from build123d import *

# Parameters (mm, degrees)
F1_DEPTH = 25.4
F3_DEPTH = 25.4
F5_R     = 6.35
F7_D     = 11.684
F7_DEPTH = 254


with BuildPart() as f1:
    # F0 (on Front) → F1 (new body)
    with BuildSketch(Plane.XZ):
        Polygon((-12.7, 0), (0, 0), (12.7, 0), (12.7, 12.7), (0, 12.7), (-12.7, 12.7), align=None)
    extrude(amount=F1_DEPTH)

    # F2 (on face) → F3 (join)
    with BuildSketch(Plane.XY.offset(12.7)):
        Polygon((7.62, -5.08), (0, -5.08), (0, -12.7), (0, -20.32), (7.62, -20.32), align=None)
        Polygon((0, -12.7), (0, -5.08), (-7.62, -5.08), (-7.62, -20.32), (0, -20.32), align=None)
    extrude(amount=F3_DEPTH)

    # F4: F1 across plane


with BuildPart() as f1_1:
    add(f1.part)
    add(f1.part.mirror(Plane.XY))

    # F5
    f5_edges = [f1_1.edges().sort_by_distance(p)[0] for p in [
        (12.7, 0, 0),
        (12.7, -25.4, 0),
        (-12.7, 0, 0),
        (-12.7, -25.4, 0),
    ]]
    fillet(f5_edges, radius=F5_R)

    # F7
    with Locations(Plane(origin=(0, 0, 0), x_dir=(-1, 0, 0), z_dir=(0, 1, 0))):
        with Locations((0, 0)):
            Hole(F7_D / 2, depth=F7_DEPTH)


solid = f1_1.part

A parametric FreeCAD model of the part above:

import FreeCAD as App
import Part
import Sketcher
from FreeCAD import Vector
Q = App.Units.Quantity


def edges_at(feature, points):
    """Names of the edges that pass closest to the given points."""
    edges = feature.Shape.Edges
    near = lambda p: min(range(len(edges)), key=lambda i: edges[i].distToShape(Part.Vertex(*p))[0])
    return sorted({f"Edge{near(p) + 1}" for p in points})


def add_polygon(sketch, points):
    """Adds a closed chain of lines whose ends are joined by coincident constraints."""
    first, n = sketch.GeometryCount, len(points)
    for a, b in zip(points, points[1:] + points[:1]):
        sketch.addGeometry(Part.LineSegment(App.Vector(*a, 0), App.Vector(*b, 0)), False)
    for i in range(n):
        sketch.addConstraint(Sketcher.Constraint("Coincident", first + i, 2, first + (i + 1) % n, 1))

doc = App.newDocument("Part")
body = doc.addObject("PartDesign::Body", "Body")

sketch1 = doc.addObject("Sketcher::SketchObject", "Sketch")
body.addObject(sketch1)
sketch1.AttachmentSupport = (doc.XZ_Plane, [""])
sketch1.MapMode = "FlatFace"
add_polygon(sketch1, [(-13, 0), (13, 0), (13, 13), (-13, 13)])
sketch1.addConstraint([
    Sketcher.Constraint("Horizontal", 0),
    Sketcher.Constraint("Vertical", 1),
    Sketcher.Constraint("Horizontal", 2),
    Sketcher.Constraint("Vertical", 3),
    Sketcher.Constraint("Symmetric", 0, 2, 3, 2, -1, 1),
    Sketcher.Constraint("DistanceX", 0, 1, 0, 2, Q("1 in")),
    Sketcher.Constraint("DistanceY", 1, 1, 1, 2, Q("0.5 in")),
])
pad1 = doc.addObject("PartDesign::Pad", "Pad")
body.addObject(pad1)
pad1.Profile = sketch1
pad1.Length = Q("1 in")

sketch2 = doc.addObject("Sketcher::SketchObject", "Sketch001")
body.addObject(sketch2)
sketch2.AttachmentSupport = (doc.XY_Plane, [""])
sketch2.MapMode = "FlatFace"
sketch2.AttachmentOffset = App.Placement(Vector(0, 0, 0.5 * 25.4), App.Rotation())
add_polygon(sketch2, [(8, -5), (-8, -5), (-8, -20), (8, -20)])
sketch2.addConstraint([
    Sketcher.Constraint("Horizontal", 0),
    Sketcher.Constraint("Vertical", 1),
    Sketcher.Constraint("Horizontal", 2),
    Sketcher.Constraint("Vertical", 3),
    Sketcher.Constraint("Equal", 2, 1),
    Sketcher.Constraint("DistanceX", 0, 2, 0, 1, Q("0.6 in")),
    Sketcher.Constraint("DistanceX", 0, 2, -1, 1, Q("0.3 in")),
    Sketcher.Constraint("DistanceY", 0, 2, -1, 1, Q("0.2 in")),
])
pad2 = doc.addObject("PartDesign::Pad", "Pad001")
body.addObject(pad2)
pad2.Profile = sketch2
pad2.Length = Q("1 in")
body2 = doc.addObject("PartDesign::Body", "Body001")
doc.recompute()

body2.BaseFeature = body
doc.recompute()

mirroring = doc.addObject("Part::Mirroring", "Mirroring")
mirroring.Source = body
mirroring.Base = Vector(0, 0, 0)
mirroring.Normal = Vector(0, 0, 1)
body3 = doc.addObject("PartDesign::Body", "Body002")
body3.BaseFeature = mirroring
boolean = doc.addObject("PartDesign::Boolean", "Boolean")
body2.addObject(boolean)
boolean.Type = "Fuse"
boolean.addObjects([body3])
doc.recompute()

fillet = doc.addObject("PartDesign::Fillet", "Fillet")
body2.addObject(fillet)
fillet.Base = (boolean, edges_at(boolean, [
    (12.7, 0, 0),
    (12.7, -25.4, 0),
    (-12.7, 0, 0),
    (-12.7, -25.4, 0),
]))
fillet.Radius = Q("0.25 in")

sketch3 = doc.addObject("Sketcher::SketchObject", "Sketch002")
body2.addObject(sketch3)
sketch3.AttachmentSupport = (doc.getObject("XZ_Plane001"), [""])
sketch3.MapMode = "FlatFace"
sketch3.addGeometry(Part.Circle(Vector(0, 0, 0), Vector(0, 0, 1), 6), False)
sketch3.addConstraint([
    Sketcher.Constraint("Coincident", 0, 3, -1, 1),
    Sketcher.Constraint("Diameter", 0, Q("0.46 in")),
])
doc.recompute()
hole = doc.addObject("PartDesign::Hole", "Hole")
body2.addObject(hole)
hole.Profile = sketch3
hole.ThreadType = "None"
hole.Diameter = Q("0.46 in")
hole.DepthType = "Dimension"
hole.Depth = Q("10 in")
hole.DrillPoint = "Flat"
hole.Reversed = True
mirroring.Visibility = False

doc.recompute()
